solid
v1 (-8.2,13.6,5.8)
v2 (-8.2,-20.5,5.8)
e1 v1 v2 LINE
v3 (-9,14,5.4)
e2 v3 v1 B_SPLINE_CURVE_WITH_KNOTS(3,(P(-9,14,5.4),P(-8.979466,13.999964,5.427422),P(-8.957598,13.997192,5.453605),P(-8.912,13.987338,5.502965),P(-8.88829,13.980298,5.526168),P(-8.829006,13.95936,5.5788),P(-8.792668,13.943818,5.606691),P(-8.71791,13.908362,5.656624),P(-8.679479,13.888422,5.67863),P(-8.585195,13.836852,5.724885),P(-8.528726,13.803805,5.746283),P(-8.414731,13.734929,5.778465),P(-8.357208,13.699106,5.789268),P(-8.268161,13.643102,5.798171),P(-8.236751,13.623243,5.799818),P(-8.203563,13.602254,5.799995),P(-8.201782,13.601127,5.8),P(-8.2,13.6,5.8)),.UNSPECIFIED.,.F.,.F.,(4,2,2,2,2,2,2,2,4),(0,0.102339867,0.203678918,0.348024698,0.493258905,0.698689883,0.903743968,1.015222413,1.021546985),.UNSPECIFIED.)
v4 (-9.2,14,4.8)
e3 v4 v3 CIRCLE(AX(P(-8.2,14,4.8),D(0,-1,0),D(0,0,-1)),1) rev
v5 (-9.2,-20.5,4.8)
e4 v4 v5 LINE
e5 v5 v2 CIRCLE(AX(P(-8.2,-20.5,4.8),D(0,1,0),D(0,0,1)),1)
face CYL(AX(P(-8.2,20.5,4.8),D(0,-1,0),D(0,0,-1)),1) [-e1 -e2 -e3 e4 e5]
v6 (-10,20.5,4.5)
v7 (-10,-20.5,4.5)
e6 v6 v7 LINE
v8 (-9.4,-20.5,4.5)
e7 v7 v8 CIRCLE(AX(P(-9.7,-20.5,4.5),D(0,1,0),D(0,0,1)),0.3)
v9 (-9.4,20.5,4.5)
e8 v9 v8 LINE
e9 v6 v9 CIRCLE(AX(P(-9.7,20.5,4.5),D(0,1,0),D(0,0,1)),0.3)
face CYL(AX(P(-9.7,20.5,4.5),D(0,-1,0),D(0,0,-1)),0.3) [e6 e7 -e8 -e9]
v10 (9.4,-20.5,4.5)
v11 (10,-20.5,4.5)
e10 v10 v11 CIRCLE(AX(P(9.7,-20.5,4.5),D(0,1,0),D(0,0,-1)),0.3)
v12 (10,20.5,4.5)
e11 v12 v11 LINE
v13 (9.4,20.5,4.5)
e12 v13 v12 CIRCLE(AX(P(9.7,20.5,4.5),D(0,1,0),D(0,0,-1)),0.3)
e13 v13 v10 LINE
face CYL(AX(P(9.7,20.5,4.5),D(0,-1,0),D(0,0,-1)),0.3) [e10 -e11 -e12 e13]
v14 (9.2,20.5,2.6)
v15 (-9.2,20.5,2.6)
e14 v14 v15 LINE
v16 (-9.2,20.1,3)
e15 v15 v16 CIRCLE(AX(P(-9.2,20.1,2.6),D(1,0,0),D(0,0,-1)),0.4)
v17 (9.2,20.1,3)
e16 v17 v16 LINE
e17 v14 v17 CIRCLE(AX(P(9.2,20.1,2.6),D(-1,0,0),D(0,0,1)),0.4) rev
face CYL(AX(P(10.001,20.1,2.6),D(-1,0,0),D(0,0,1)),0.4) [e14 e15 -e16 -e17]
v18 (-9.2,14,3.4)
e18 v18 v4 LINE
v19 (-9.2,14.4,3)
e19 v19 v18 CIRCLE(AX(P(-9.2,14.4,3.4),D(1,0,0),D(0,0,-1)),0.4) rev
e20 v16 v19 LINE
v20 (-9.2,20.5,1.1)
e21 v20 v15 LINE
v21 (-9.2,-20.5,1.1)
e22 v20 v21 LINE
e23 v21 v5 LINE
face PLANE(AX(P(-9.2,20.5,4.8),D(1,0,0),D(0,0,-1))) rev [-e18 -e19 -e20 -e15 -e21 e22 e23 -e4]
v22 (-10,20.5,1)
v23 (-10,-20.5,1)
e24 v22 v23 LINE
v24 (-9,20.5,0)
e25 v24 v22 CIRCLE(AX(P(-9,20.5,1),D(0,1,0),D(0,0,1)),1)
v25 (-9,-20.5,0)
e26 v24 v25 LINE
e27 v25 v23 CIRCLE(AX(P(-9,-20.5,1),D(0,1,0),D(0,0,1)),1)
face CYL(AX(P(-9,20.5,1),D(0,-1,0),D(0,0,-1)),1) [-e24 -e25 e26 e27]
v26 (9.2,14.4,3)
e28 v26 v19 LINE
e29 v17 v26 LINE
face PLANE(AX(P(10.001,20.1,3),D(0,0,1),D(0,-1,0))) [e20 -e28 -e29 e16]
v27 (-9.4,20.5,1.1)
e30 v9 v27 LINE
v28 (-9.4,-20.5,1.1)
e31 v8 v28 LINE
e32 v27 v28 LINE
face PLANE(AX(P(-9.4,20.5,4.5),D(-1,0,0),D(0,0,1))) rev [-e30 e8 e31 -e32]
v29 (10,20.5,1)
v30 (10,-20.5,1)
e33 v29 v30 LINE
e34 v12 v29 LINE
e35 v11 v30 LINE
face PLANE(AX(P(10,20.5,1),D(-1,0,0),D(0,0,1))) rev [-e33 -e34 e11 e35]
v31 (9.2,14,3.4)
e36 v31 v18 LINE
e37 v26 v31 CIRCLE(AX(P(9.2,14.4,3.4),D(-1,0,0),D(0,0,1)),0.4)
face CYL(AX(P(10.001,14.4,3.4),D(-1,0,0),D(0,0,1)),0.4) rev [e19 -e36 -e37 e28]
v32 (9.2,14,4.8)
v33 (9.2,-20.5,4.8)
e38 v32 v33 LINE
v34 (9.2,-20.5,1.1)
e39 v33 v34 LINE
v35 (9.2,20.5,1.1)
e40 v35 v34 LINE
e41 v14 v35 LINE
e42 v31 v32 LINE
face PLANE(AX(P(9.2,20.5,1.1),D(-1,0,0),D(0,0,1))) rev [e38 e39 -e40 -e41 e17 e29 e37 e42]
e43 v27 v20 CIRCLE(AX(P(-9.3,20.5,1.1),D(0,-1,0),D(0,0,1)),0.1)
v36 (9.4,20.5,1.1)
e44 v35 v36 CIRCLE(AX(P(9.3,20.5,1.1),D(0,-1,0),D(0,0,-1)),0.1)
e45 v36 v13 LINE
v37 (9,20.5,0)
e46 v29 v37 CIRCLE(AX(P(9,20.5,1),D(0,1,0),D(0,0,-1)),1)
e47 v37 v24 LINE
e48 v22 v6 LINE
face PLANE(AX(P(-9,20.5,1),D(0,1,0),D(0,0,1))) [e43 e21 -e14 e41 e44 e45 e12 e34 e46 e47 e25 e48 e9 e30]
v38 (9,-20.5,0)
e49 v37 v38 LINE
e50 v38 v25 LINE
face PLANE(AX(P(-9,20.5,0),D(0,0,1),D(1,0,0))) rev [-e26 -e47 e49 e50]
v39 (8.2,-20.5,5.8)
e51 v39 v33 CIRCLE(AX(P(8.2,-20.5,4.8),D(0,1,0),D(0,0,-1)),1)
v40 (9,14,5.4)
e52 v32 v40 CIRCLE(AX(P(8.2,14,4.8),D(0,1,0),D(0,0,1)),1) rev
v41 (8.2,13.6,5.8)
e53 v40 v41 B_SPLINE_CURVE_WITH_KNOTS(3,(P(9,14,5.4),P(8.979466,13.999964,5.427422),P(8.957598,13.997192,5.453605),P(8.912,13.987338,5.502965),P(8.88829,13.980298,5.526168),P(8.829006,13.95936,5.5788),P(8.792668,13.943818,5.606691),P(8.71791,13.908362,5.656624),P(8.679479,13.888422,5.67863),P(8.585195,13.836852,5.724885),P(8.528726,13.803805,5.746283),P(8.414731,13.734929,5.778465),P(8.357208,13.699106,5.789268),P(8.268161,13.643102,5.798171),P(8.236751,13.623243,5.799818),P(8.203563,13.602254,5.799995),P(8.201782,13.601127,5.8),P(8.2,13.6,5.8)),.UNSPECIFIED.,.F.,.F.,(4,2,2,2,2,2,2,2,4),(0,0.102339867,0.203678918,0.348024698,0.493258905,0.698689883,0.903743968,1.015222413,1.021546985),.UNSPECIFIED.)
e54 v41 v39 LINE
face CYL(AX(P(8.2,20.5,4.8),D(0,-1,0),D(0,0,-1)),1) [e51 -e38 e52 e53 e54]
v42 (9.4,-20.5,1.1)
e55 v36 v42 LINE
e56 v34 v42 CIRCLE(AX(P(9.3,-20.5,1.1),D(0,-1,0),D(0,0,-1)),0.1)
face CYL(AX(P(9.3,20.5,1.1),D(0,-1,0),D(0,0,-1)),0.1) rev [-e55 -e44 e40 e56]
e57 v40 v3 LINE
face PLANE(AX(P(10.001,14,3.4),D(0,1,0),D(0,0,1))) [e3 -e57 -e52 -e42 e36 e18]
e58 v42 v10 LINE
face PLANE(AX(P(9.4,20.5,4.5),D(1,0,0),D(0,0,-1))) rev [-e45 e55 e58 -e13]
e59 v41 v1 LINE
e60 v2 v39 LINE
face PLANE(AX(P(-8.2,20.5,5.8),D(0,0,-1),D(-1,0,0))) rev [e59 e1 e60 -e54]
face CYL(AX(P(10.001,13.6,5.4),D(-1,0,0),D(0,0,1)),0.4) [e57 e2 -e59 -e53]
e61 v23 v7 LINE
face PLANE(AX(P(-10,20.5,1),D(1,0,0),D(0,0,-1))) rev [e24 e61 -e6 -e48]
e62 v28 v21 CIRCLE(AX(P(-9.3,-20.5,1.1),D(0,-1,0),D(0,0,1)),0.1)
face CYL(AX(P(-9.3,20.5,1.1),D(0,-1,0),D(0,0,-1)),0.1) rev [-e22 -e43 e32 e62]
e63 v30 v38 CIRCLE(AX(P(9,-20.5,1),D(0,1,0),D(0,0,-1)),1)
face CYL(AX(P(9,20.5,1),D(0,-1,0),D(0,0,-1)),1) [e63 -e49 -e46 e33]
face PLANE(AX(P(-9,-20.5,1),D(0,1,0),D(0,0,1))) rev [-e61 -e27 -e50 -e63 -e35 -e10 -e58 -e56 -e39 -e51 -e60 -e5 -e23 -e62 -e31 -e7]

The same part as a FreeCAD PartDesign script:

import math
import FreeCAD as App
import Part
import Sketcher

V = App.Vector

doc = App.newDocument("Part")
body = doc.addObject("PartDesign::Body", "Body")

# Sketch on XZ plane
sketch1 = body.newObject("Sketcher::SketchObject", "Sketch")
sketch1.AttachmentSupport = (doc.getObject("XZ_Plane"), [""])
sketch1.MapMode = "FlatFace"
sketch1.addGeometry([
    Part.LineSegment(V(9, 0, 0), V(-9, 0, 0)),  # 0
    Part.ArcOfCircle(Part.Circle(V(-9, 1, 0), V(0, 0, 1), 1), math.radians(-180), math.radians(-90)),  # 1
    Part.LineSegment(V(-10, 1, 0), V(-10, 4.5, 0)),  # 2
    Part.ArcOfCircle(Part.Circle(V(-9.7, 4.5, 0), V(0, 0, 1), 0.3), math.radians(0), math.radians(180)),  # 3
    Part.LineSegment(V(-9.4, 4.5, 0), V(-9.4, 1.1, 0)),  # 4
    Part.ArcOfCircle(Part.Circle(V(-9.3, 1.1, 0), V(0, 0, 1), 0.1), math.radians(180), math.radians(360)),  # 5
    Part.LineSegment(V(-9.2, 1.1, 0), V(-9.2, 4.8, 0)),  # 6
    Part.ArcOfCircle(Part.Circle(V(-8.2, 4.8, 0), V(0, 0, 1), 1), math.radians(90), math.radians(180)),  # 7
    Part.LineSegment(V(-8.2, 5.8, 0), V(8.2, 5.8, 0)),  # 8
    Part.ArcOfCircle(Part.Circle(V(8.2, 4.8, 0), V(0, 0, 1), 1), math.radians(0), math.radians(90)),  # 9
    Part.LineSegment(V(9.2, 4.8, 0), V(9.2, 1.1, 0)),  # 10
    Part.ArcOfCircle(Part.Circle(V(9.3, 1.1, 0), V(0, 0, 1), 0.1), math.radians(180), math.radians(360)),  # 11
    Part.LineSegment(V(9.4, 1.1, 0), V(9.4, 4.5, 0)),  # 12
    Part.ArcOfCircle(Part.Circle(V(9.7, 4.5, 0), V(0, 0, 1), 0.3), math.radians(0), math.radians(180)),  # 13
    Part.LineSegment(V(10, 4.5, 0), V(10, 1, 0)),  # 14
    Part.ArcOfCircle(Part.Circle(V(9, 1, 0), V(0, 0, 1), 1), math.radians(-90), math.radians(0)),  # 15
], False)
sketch1.addConstraint([
    Sketcher.Constraint("Tangent", 0, 2, 1, 2),
    Sketcher.Constraint("Tangent", 1, 1, 2, 1),
    Sketcher.Constraint("Tangent", 2, 2, 3, 2),
    Sketcher.Constraint("Tangent", 3, 1, 4, 1),
    Sketcher.Constraint("Tangent", 4, 2, 5, 1),
    Sketcher.Constraint("Tangent", 5, 2, 6, 1),
    Sketcher.Constraint("Tangent", 6, 2, 7, 2),
    Sketcher.Constraint("Tangent", 7, 1, 8, 1),
    Sketcher.Constraint("Tangent", 8, 2, 9, 2),
    Sketcher.Constraint("Tangent", 9, 1, 10, 1),
    Sketcher.Constraint("Tangent", 10, 2, 11, 1),
    Sketcher.Constraint("Tangent", 11, 2, 12, 1),
    Sketcher.Constraint("Tangent", 12, 2, 13, 2),
    Sketcher.Constraint("Tangent", 13, 1, 14, 1),
    Sketcher.Constraint("Tangent", 14, 2, 15, 2),
    Sketcher.Constraint("Tangent", 15, 1, 0, 1),
    Sketcher.Constraint("Horizontal", 0),
    Sketcher.Constraint("Vertical", 2),
    Sketcher.Constraint("Vertical", 4),
    Sketcher.Constraint("Vertical", 6),
    Sketcher.Constraint("Horizontal", 8),
    Sketcher.Constraint("Vertical", 10),
    Sketcher.Constraint("Vertical", 12),
    Sketcher.Constraint("Vertical", 14),
    Sketcher.Constraint("Equal", 1, 7),
    Sketcher.Constraint("Equal", 7, 9),
    Sketcher.Constraint("Equal", 5, 11),
    Sketcher.Constraint("Equal", 3, 13),
    Sketcher.Constraint("Equal", 9, 15),
    Sketcher.Constraint("Symmetric", 0, 2, 15, 1, -1, 1),
    Sketcher.Constraint("Horizontal", 5, 3, 11, 3),
    Sketcher.Constraint("Horizontal", 3, 3, 13, 3),
    Sketcher.Constraint("Radius", 1, 1.0),
    Sketcher.Constraint("Radius", 3, 0.3),
    Sketcher.Constraint("Radius", 5, 0.1),
    Sketcher.Constraint("DistanceX", 0, 2, 0, 1, 18.0),
    Sketcher.Constraint("DistanceY", 2, 1, 2, 2, 3.5),
    Sketcher.Constraint("DistanceY", 4, 2, 4, 1, 3.4),
    Sketcher.Constraint("DistanceY", 6, 1, 6, 2, 3.7),
])
pad1 = body.newObject("PartDesign::Pad", "Pad")
pad1.Profile = sketch1
pad1.Length = 41
pad1.Midplane = True

# Sketch on YZ plane
sketch2 = body.newObject("Sketcher::SketchObject", "Sketch001")
sketch2.AttachmentSupport = (doc.getObject("YZ_Plane"), [""])
sketch2.MapMode = "FlatFace"
sketch2.addGeometry([
    Part.LineSegment(V(14.4, 3, 0), V(20.1, 3, 0)),  # 0
    Part.ArcOfCircle(Part.Circle(V(20.1, 2.6, 0), V(0, 0, 1), 0.4), math.radians(0), math.radians(90)),  # 1
    Part.LineSegment(V(20.5, 2.6, 0), V(20.5, 5.8, 0)),  # 2
    Part.LineSegment(V(20.5, 5.8, 0), V(13.6, 5.8, 0)),  # 3
    Part.ArcOfCircle(Part.Circle(V(13.6, 5.4, 0), V(0, 0, 1), 0.4), math.radians(0), math.radians(90)),  # 4
    Part.LineSegment(V(14, 5.4, 0), V(14, 3.4, 0)),  # 5
    Part.ArcOfCircle(Part.Circle(V(14.4, 3.4, 0), V(0, 0, 1), 0.4), math.radians(-180), math.radians(-90)),  # 6
], False)
sketch2.addConstraint([
    Sketcher.Constraint("Tangent", 0, 2, 1, 2),
    Sketcher.Constraint("Tangent", 1, 1, 2, 1),
    Sketcher.Constraint("Coincident", 2, 2, 3, 1),
    Sketcher.Constraint("Tangent", 3, 2, 4, 2),
    Sketcher.Constraint("Tangent", 4, 1, 5, 1),
    Sketcher.Constraint("Tangent", 5, 2, 6, 1),
    Sketcher.Constraint("Tangent", 6, 2, 0, 1),
    Sketcher.Constraint("Horizontal", 0),
    Sketcher.Constraint("Vertical", 2),
    Sketcher.Constraint("Horizontal", 3),
    Sketcher.Constraint("Vertical", 5),
    Sketcher.Constraint("Equal", 1, 4),
    Sketcher.Constraint("Equal", 4, 6),
    Sketcher.Constraint("Radius", 1, 0.4),
    Sketcher.Constraint("DistanceY", 5, 2, 5, 1, 2.0),
    Sketcher.Constraint("DistanceX", 0, 1, 0, 2, 5.7),
    Sketcher.Constraint("DistanceY", -1, 1, 0, 2, 3.0),
    Sketcher.Constraint("DistanceX", -1, 1, 4, 1, 14.0),
])
pocket1 = body.newObject("PartDesign::Pocket", "Pocket")
pocket1.Profile = sketch2
pocket1.Type = "UpToFirst"

# Sketch on YZ plane
sketch3 = body.newObject("Sketcher::SketchObject", "Sketch002")
sketch3.AttachmentSupport = (doc.getObject("YZ_Plane"), [""])
sketch3.MapMode = "FlatFace"
sketch3.addGeometry([
    Part.LineSegment(V(14.4, 3, 0), V(20.1, 3, 0)),  # 0
    Part.ArcOfCircle(Part.Circle(V(20.1, 2.6, 0), V(0, 0, 1), 0.4), math.radians(0), math.radians(90)),  # 1
    Part.LineSegment(V(20.5, 2.6, 0), V(20.5, 5.8, 0)),  # 2
    Part.LineSegment(V(20.5, 5.8, 0), V(13.6, 5.8, 0)),  # 3
    Part.ArcOfCircle(Part.Circle(V(13.6, 5.4, 0), V(0, 0, 1), 0.4), math.radians(0), math.radians(90)),  # 4
    Part.LineSegment(V(14, 5.4, 0), V(14, 3.4, 0)),  # 5
    Part.ArcOfCircle(Part.Circle(V(14.4, 3.4, 0), V(0, 0, 1), 0.4), math.radians(-180), math.radians(-90)),  # 6
], False)
sketch3.addConstraint([
    Sketcher.Constraint("Tangent", 0, 2, 1, 2),
    Sketcher.Constraint("Tangent", 1, 1, 2, 1),
    Sketcher.Constraint("Coincident", 2, 2, 3, 1),
    Sketcher.Constraint("Tangent", 3, 2, 4, 2),
    Sketcher.Constraint("Tangent", 4, 1, 5, 1),
    Sketcher.Constraint("Tangent", 5, 2, 6, 1),
    Sketcher.Constraint("Tangent", 6, 2, 0, 1),
    Sketcher.Constraint("Horizontal", 0),
    Sketcher.Constraint("Vertical", 2),
    Sketcher.Constraint("Horizontal", 3),
    Sketcher.Constraint("Vertical", 5),
    Sketcher.Constraint("Equal", 1, 4),
    Sketcher.Constraint("Equal", 4, 6),
    Sketcher.Constraint("Radius", 1, 0.4),
    Sketcher.Constraint("DistanceY", 5, 2, 5, 1, 2.0),
    Sketcher.Constraint("DistanceX", 0, 1, 0, 2, 5.7),
    Sketcher.Constraint("DistanceY", -1, 1, 0, 2, 3.0),
    Sketcher.Constraint("DistanceX", -1, 1, 4, 1, 14.0),
])
pocket2 = body.newObject("PartDesign::Pocket", "Pocket001")
pocket2.Profile = sketch3
pocket2.Type = "UpToFirst"
pocket2.Reversed = True

doc.recompute()
